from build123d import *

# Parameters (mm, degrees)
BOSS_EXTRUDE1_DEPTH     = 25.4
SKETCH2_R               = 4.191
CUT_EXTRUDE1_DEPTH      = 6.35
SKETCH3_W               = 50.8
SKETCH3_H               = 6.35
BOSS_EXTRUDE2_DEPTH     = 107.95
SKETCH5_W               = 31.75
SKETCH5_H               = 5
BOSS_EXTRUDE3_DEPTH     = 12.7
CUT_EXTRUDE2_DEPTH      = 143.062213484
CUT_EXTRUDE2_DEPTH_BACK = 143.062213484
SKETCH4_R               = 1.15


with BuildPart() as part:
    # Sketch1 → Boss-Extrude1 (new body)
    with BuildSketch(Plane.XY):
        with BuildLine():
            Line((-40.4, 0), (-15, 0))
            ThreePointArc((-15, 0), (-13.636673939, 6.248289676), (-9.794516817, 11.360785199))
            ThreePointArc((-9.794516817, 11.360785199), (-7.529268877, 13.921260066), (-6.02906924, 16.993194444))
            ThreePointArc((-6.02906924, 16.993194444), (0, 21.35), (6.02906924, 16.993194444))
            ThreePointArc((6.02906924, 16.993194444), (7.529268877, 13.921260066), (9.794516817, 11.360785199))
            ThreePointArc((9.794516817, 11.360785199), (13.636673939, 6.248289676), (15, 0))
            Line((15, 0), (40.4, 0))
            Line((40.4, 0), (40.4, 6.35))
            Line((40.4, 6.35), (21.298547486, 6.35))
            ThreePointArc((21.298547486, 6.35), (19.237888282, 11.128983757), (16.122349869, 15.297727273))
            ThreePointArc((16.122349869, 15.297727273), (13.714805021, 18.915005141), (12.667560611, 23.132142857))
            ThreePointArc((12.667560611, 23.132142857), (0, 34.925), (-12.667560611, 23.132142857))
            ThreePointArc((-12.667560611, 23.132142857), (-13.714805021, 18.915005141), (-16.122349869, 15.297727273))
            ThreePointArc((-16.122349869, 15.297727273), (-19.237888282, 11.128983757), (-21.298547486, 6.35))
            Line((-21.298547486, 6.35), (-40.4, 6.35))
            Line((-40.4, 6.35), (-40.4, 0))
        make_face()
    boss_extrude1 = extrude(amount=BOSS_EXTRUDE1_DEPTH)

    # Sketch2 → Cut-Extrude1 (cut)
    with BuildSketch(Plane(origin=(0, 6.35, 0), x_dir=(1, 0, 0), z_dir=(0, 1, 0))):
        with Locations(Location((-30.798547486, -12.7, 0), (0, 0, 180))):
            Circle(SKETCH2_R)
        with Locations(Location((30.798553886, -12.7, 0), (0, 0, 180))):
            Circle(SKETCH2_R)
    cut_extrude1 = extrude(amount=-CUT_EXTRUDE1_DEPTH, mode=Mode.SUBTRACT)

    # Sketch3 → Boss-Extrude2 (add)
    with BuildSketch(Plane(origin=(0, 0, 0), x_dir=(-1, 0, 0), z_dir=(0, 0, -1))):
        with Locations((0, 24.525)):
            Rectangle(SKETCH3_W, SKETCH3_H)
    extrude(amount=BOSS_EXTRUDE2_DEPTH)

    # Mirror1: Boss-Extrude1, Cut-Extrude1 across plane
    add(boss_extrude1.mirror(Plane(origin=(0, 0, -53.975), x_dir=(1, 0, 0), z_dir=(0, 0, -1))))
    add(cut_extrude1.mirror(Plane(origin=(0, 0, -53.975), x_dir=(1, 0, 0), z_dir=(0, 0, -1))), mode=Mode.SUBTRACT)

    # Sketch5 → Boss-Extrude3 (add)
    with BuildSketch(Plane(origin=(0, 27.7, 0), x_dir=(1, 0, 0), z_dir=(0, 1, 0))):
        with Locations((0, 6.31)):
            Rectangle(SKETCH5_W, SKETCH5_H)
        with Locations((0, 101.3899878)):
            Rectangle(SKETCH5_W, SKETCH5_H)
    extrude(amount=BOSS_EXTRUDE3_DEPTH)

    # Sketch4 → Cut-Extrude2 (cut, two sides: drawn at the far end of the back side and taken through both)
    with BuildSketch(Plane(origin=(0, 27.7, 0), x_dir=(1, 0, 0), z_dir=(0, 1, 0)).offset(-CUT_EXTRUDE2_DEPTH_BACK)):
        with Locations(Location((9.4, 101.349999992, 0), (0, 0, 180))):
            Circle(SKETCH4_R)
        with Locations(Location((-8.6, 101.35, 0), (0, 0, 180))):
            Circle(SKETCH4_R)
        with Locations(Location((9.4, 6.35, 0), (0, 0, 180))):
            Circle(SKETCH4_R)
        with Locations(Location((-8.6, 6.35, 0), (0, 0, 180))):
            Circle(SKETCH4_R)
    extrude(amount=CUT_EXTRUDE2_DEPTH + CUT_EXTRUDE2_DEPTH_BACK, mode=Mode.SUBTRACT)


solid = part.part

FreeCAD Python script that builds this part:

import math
import FreeCAD as App
import Part
import Sketcher
from FreeCAD import Vector
Q = App.Units.Quantity

doc = App.newDocument("Part")
params = doc.addObject("Spreadsheet::Sheet", "Params")
for row, (alias, value) in enumerate([
    ("sketch1_radius", "0.5 in"),
    ("sketch1_width", "1 in"),
    ("sketch1_radius2", "0.25 in"),
    ("sketch1_radius3", "0.875 in"),
    ("sketch1_height", "0.25 in"),
    ("pad1_length", "1 in"),
    ("sketch2_diameter", "0.33 in"),
    ("pocket1_length", "0.25 in"),
    ("sketch3_width", "2 in"),
    ("sketch3_height", "0.25 in"),
    ("pad2_length", "4.25 in"),
    ("sketch4_width", "1.25 in"),
    ("pad3_length", "0.5 in"),
], start=1):
    params.set(f"A{row}", alias)
    params.set(f"B{row}", "=" + value)
    params.setAlias(f"B{row}", alias)

body = doc.addObject("PartDesign::Body", "Body")

# Sketch on XY plane
sketch1 = doc.addObject("Sketcher::SketchObject", "Sketch")
body.addObject(sketch1)
sketch1.AttachmentSupport = (doc.XY_Plane, [""])
sketch1.MapMode = "FlatFace"
sketch1.addGeometry([
    Part.LineSegment(Vector(-40, 0, 0), Vector(-15, 0, 0)),  # 0
    Part.ArcOfCircle(Part.Circle(Vector(0, 0, 0), Vector(0, 0, 1), 15), math.radians(131), math.radians(180)),  # 1
    Part.ArcOfCircle(Part.Circle(Vector(-18, 21, 0), Vector(0, 0, 1), 13), math.radians(-49), math.radians(-18)),  # 2
    Part.ArcOfCircle(Part.Circle(Vector(0, 15, 0), Vector(0, 0, 1), 6), math.radians(18), math.radians(162)),  # 3
    Part.ArcOfCircle(Part.Circle(Vector(18, 21, 0), Vector(0, 0, 1), 13), math.radians(-162), math.radians(-131)),  # 4
    Part.ArcOfCircle(Part.Circle(Vector(0, 0, 0), Vector(0, 0, 1), 15), math.radians(0), math.radians(49)),  # 5
    Part.LineSegment(Vector(15, 0, 0), Vector(40, 0, 0)),  # 6
    Part.LineSegment(Vector(40, 0, 0), Vector(40, 6, 0)),  # 7
    Part.LineSegment(Vector(40, 6, 0), Vector(21, 6, 0)),  # 8
    Part.ArcOfCircle(Part.Circle(Vector(0, 0, 0), Vector(0, 0, 1), 22), math.radians(17), math.radians(43)),  # 9
    Part.ArcOfCircle(Part.Circle(Vector(25, 24, 0), Vector(0, 0, 1), 13), math.radians(-176), math.radians(-137)),  # 10
    Part.ArcOfCircle(Part.Circle(Vector(0, 22, 0), Vector(0, 0, 1), 13), math.radians(4), math.radians(176)),  # 11
    Part.ArcOfCircle(Part.Circle(Vector(-25, 24, 0), Vector(0, 0, 1), 13), math.radians(-43), math.radians(-4)),  # 12
    Part.ArcOfCircle(Part.Circle(Vector(0, 0, 0), Vector(0, 0, 1), 22), math.radians(137), math.radians(163)),  # 13
    Part.LineSegment(Vector(-21, 6, 0), Vector(-40, 6, 0)),  # 14
    Part.LineSegment(Vector(-40, 6, 0), Vector(-40, 0, 0)),  # 15
], False)
sketch1.addConstraint([
    Sketcher.Constraint("Coincident", 0, 2, 1, 2),
    Sketcher.Constraint("Tangent", 1, 1, 2, 1),
    Sketcher.Constraint("Tangent", 2, 2, 3, 2),
    Sketcher.Constraint("Tangent", 3, 1, 4, 1),
    Sketcher.Constraint("Tangent", 4, 2, 5, 2),
    Sketcher.Constraint("Coincident", 5, 1, 6, 1),
    Sketcher.Constraint("Coincident", 6, 2, 7, 1),
    Sketcher.Constraint("Coincident", 7, 2, 8, 1),
    Sketcher.Constraint("Coincident", 8, 2, 9, 1),
    Sketcher.Constraint("Tangent", 9, 2, 10, 2),
    Sketcher.Constraint("Tangent", 10, 1, 11, 1),
    Sketcher.Constraint("Tangent", 11, 2, 12, 2),
    Sketcher.Constraint("Tangent", 12, 1, 13, 1),
    Sketcher.Constraint("Coincident", 13, 2, 14, 1),
    Sketcher.Constraint("Coincident", 14, 2, 15, 1),
    Sketcher.Constraint("Coincident", 15, 2, 0, 1),
    Sketcher.Constraint("Horizontal", 0),
    Sketcher.Constraint("Horizontal", 6),
    Sketcher.Constraint("Vertical", 7),
    Sketcher.Constraint("Horizontal", 8),
    Sketcher.Constraint("Horizontal", 14),
    Sketcher.Constraint("Vertical", 15),
    Sketcher.Constraint("Coincident", 1, 3, -1, 1),
    Sketcher.Constraint("Coincident", 5, 3, -1, 1),
    Sketcher.Constraint("Coincident", 9, 3, -1, 1),
    Sketcher.Constraint("Coincident", 13, 3, -1, 1),
    Sketcher.Constraint("Equal", 2, 4),
    Sketcher.Constraint("Equal", 1, 5),
    Sketcher.Constraint("Equal", 4, 10),
    Sketcher.Constraint("Equal", 10, 11),
    Sketcher.Constraint("Equal", 11, 12),
    Sketcher.Constraint("Equal", 9, 13),
    Sketcher.Constraint("Symmetric", 6, 2, 15, 2, -1, 1),
    Sketcher.Constraint("PointOnObject", 3, 3, -2),
    Sketcher.Constraint("PointOnObject", 11, 3, -2),
    Sketcher.Constraint("PointOnObject", 0, 2, -1),
    Sketcher.Constraint("Horizontal", 8, 2, 13, 2),
    Sketcher.Constraint("Radius", 2, Q("0.5 in")),
    Sketcher.Constraint("DistanceX", 0, 1, 0, 2, Q("1 in")),
    Sketcher.Constraint("Radius", 3, Q("0.25 in")),
    Sketcher.Constraint("Radius", 9, Q("0.875 in")),
    Sketcher.Constraint("DistanceY", 7, 1, 7, 2, Q("0.25 in")),
    Sketcher.Constraint("Radius", 1, Q("15 mm")),
    Sketcher.Constraint("DistanceY", -1, 1, 11, 3, Q("0.875 in")),
    Sketcher.Constraint("DistanceY", -1, 1, 3, 3, Q("15 mm")),
])
sketch1.setExpression("Constraints[37]", "Params.sketch1_radius")
sketch1.setExpression("Constraints[38]", "Params.sketch1_width")
sketch1.setExpression("Constraints[39]", "Params.sketch1_radius2")
sketch1.setExpression("Constraints[40]", "Params.sketch1_radius3")
sketch1.setExpression("Constraints[41]", "Params.sketch1_height")
pad1 = doc.addObject("PartDesign::Pad", "Pad")
body.addObject(pad1)
pad1.Profile = sketch1
pad1.setExpression("Length", "Params.pad1_length")

# Sketch on XZ plane
sketch2 = doc.addObject("Sketcher::SketchObject", "Sketch001")
body.addObject(sketch2)
sketch2.AttachmentSupport = (doc.XZ_Plane, [""])
sketch2.MapMode = "FlatFace"
sketch2.AttachmentOffset = App.Placement(Vector(0, 0, -0.25 * 25.4), App.Rotation())
sketch2.addGeometry([
    Part.Circle(Vector(-30.8, 12.7, 0), Vector(0, 0, 1), 4.2),
    Part.Circle(Vector(30.8, 12.7, 0), Vector(0, 0, 1), 4.2),
], False)
sketch2.addConstraint([
    Sketcher.Constraint("Equal", 0, 1),
    Sketcher.Constraint("Symmetric", 0, 3, 1, 3, -2),
    Sketcher.Constraint("Diameter", 0, Q("0.33 in")),
    Sketcher.Constraint("DistanceY", -1, 1, 0, 3, Q("0.5 in")),
    Sketcher.Constraint("DistanceX", 0, 3, 1, 3, Q("61.597101 mm")),
])
sketch2.setExpression("Constraints[2]", "Params.sketch2_diameter")
pocket1 = doc.addObject("PartDesign::Pocket", "Pocket")
body.addObject(pocket1)
pocket1.Profile = sketch2
pocket1.setExpression("Length", "Params.pocket1_length")
pocket1.Reversed = True

# Sketch on XY plane
sketch3 = doc.addObject("Sketcher::SketchObject", "Sketch002")
body.addObject(sketch3)
sketch3.AttachmentSupport = (doc.XY_Plane, [""])
sketch3.MapMode = "FlatFace"
sketch3.addGeometry([
    Part.LineSegment(Vector(25, 28, 0), Vector(25, 21, 0)),
    Part.LineSegment(Vector(25, 21, 0), Vector(-25, 21, 0)),
    Part.LineSegment(Vector(-25, 21, 0), Vector(-25, 28, 0)),
    Part.LineSegment(Vector(-25, 28, 0), Vector(25, 28, 0)),
], False)
sketch3.addConstraint([
    Sketcher.Constraint("Coincident", 0, 2, 1, 1),
    Sketcher.Constraint("Coincident", 1, 2, 2, 1),
    Sketcher.Constraint("Coincident", 2, 2, 3, 1),
    Sketcher.Constraint("Coincident", 3, 2, 0, 1),
    Sketcher.Constraint("Vertical", 0),
    Sketcher.Constraint("Horizontal", 1),
    Sketcher.Constraint("Vertical", 2),
    Sketcher.Constraint("Horizontal", 3),
    Sketcher.Constraint("DistanceX", 1, 2, 1, 1, Q("2 in")),
    Sketcher.Constraint("DistanceX", -1, 1, 0, 2, Q("1 in")),
    Sketcher.Constraint("DistanceY", 0, 2, 0, 1, Q("0.25 in")),
    Sketcher.Constraint("DistanceY", -1, 1, 0, 2, Q("21.35 mm")),
])
sketch3.setExpression("Constraints[8]", "Params.sketch3_width")
sketch3.setExpression("Constraints[10]", "Params.sketch3_height")
pad2 = doc.addObject("PartDesign::Pad", "Pad001")
body.addObject(pad2)
pad2.Profile = sketch3
pad2.setExpression("Length", "Params.pad2_length")
pad2.Reversed = True
doc.recompute()

datumplane = doc.addObject("PartDesign::Plane", "DatumPlane")
body.addObject(datumplane)
datumplane.AttachmentSupport = (doc.XY_Plane, [""])
datumplane.MapMode = "FlatFace"
datumplane.AttachmentOffset = App.Placement(Vector(0, 0, -2.125 * 25.4), App.Rotation())
mirrored = doc.addObject("PartDesign::Mirrored", "Mirrored")
body.addObject(mirrored)
mirrored.Originals = [pad1, pocket1]
mirrored.MirrorPlane = (datumplane, [""])
body.Tip = mirrored

# Sketch on XZ plane
sketch4 = doc.addObject("Sketcher::SketchObject", "Sketch003")
body.addObject(sketch4)
sketch4.AttachmentSupport = (doc.XZ_Plane, [""])
sketch4.MapMode = "FlatFace"
sketch4.AttachmentOffset = App.Placement(Vector(0, 0, -27.7), App.Rotation())
sketch4.addGeometry([
    Part.LineSegment(Vector(-16, -9, 0), Vector(-16, -4, 0)),  # 0
    Part.LineSegment(Vector(-16, -4, 0), Vector(16, -4, 0)),  # 1
    Part.LineSegment(Vector(16, -4, 0), Vector(16, -9, 0)),  # 2
    Part.LineSegment(Vector(16, -9, 0), Vector(-16, -9, 0)),  # 3
    Part.LineSegment(Vector(-16, -104, 0), Vector(-16, -99, 0)),  # 4
    Part.LineSegment(Vector(-16, -99, 0), Vector(16, -99, 0)),  # 5
    Part.LineSegment(Vector(16, -99, 0), Vector(16, -104, 0)),  # 6
    Part.LineSegment(Vector(16, -104, 0), Vector(-16, -104, 0)),  # 7
], False)
sketch4.addConstraint([
    Sketcher.Constraint("Coincident", 0, 2, 1, 1),
    Sketcher.Constraint("Coincident", 1, 2, 2, 1),
    Sketcher.Constraint("Coincident", 2, 2, 3, 1),
    Sketcher.Constraint("Coincident", 3, 2, 0, 1),
    Sketcher.Constraint("Coincident", 4, 2, 5, 1),
    Sketcher.Constraint("Coincident", 5, 2, 6, 1),
    Sketcher.Constraint("Coincident", 6, 2, 7, 1),
    Sketcher.Constraint("Coincident", 7, 2, 4, 1),
    Sketcher.Constraint("Vertical", 0),
    Sketcher.Constraint("Horizontal", 1),
    Sketcher.Constraint("Vertical", 2),
    Sketcher.Constraint("Horizontal", 3),
    Sketcher.Constraint("Vertical", 4),
    Sketcher.Constraint("Horizontal", 5),
    Sketcher.Constraint("Vertical", 6),
    Sketcher.Constraint("Horizontal", 7),
    Sketcher.Constraint("Vertical", 3, 2, 4, 2),
    Sketcher.Constraint("Vertical", 2, 2, 5, 2),
    Sketcher.Constraint("Equal", 2, 4),
    Sketcher.Constraint("DistanceX", 1, 1, 1, 2, Q("1.25 in")),
    Sketcher.Constraint("DistanceY", 0, 2, -1, 1, Q("0.15 in")),
    Sketcher.Constraint("DistanceX", 0, 2, -1, 1, Q("0.625 in")),
    Sketcher.Constraint("DistanceY", 0, 1, 0, 2, Q("5 mm")),
    Sketcher.Constraint("DistanceY", 4, 2, -1, 1, Q("98.889988 mm")),
])
sketch4.setExpression("Constraints[19]", "Params.sketch4_width")
pad3 = doc.addObject("PartDesign::Pad", "Pad002")
body.addObject(pad3)
pad3.Profile = sketch4
pad3.setExpression("Length", "Params.pad3_length")
pad3.Reversed = True

# Sketch on XZ plane
sketch5 = doc.addObject("Sketcher::SketchObject", "Sketch004")
body.addObject(sketch5)
sketch5.AttachmentSupport = (doc.XZ_Plane, [""])
sketch5.MapMode = "FlatFace"
sketch5.AttachmentOffset = App.Placement(Vector(0, 0, -27.7), App.Rotation())
sketch5.addGeometry([
    Part.Circle(Vector(9.4, -101.3, 0), Vector(0, 0, 1), 1.1),
    Part.Circle(Vector(-8.6, -101.3, 0), Vector(0, 0, 1), 1.1),
    Part.Circle(Vector(9.4, -6.3, 0), Vector(0, 0, 1), 1.1),
    Part.Circle(Vector(-8.6, -6.3, 0), Vector(0, 0, 1), 1.1),
], False)
sketch5.addConstraint([
    Sketcher.Constraint("Equal", 0, 1),
    Sketcher.Constraint("Equal", 1, 2),
    Sketcher.Constraint("Equal", 2, 3),
    Sketcher.Constraint("Horizontal", 0, 3, 1, 3),
    Sketcher.Constraint("Horizontal", 2, 3, 3, 3),
    Sketcher.Constraint("Vertical", 0, 3, 2, 3),
    Sketcher.Constraint("Vertical", 1, 3, 3, 3),
    Sketcher.Constraint("Diameter", 0, Q("2.3 mm")),
    Sketcher.Constraint("DistanceY", 2, 3, -1, 1, Q("0.25 in")),
    Sketcher.Constraint("DistanceX", -1, 1, 0, 3, Q("9.4 mm")),
    Sketcher.Constraint("DistanceY", 0, 3, -1, 1, Q("101.35 mm")),
    Sketcher.Constraint("DistanceX", 1, 3, -1, 1, Q("8.6 mm")),
])
pocket2 = doc.addObject("PartDesign::Pocket", "Pocket001")
body.addObject(pocket2)
pocket2.Profile = sketch5
pocket2.Type = "ThroughAll"
pocket2.Midplane = True

doc.recompute()
